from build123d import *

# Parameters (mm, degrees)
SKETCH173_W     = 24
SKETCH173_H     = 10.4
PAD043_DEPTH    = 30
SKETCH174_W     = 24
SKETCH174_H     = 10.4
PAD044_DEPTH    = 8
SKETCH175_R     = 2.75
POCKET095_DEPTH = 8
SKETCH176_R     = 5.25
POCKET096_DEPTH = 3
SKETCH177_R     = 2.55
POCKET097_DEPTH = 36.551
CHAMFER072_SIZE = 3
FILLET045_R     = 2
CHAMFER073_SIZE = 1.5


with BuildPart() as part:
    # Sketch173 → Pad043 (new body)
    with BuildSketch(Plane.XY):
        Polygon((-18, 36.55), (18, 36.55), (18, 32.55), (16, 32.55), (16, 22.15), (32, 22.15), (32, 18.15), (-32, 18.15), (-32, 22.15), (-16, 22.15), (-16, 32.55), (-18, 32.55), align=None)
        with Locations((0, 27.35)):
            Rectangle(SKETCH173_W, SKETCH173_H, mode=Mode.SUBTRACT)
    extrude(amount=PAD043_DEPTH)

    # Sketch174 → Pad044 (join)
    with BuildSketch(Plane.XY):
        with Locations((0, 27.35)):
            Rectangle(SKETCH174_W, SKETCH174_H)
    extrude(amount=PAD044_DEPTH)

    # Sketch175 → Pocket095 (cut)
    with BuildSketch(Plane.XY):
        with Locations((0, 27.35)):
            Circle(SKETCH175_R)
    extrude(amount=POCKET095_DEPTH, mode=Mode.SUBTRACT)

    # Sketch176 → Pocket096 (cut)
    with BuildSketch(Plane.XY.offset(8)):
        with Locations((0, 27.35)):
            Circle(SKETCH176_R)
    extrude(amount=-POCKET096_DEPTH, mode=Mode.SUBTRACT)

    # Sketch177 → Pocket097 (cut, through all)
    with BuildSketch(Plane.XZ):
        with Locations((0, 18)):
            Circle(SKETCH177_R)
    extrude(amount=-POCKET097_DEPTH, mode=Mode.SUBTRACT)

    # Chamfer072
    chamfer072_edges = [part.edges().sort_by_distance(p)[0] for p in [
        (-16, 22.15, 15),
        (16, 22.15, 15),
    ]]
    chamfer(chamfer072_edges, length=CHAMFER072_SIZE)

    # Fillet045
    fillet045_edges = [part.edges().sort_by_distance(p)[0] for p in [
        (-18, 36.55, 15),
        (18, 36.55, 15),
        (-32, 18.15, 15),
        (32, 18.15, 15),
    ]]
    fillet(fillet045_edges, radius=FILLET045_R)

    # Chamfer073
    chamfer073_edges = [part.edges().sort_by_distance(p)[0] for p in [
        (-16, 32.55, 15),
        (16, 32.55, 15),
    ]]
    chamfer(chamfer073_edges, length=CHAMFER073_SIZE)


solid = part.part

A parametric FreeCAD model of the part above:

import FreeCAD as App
import Part
import Sketcher

V = App.Vector


def edges_at(feature, points):
    """Names of the edges that pass closest to the given points."""
    edges = feature.Shape.Edges
    near = lambda p: min(range(len(edges)), key=lambda i: edges[i].distToShape(Part.Vertex(*p))[0])
    return sorted({f"Edge{near(p) + 1}" for p in points})

doc = App.newDocument("Part")
body = doc.addObject("PartDesign::Body", "Body")

sketch1 = doc.addObject("Sketcher::SketchObject", "Sketch")
body.addObject(sketch1)
sketch1.AttachmentSupport = (doc.XY_Plane, [""])
sketch1.MapMode = "FlatFace"
sketch1.addGeometry([
    Part.LineSegment(V(18, 36.5, 0), V(-18, 36.5, 0)),
    Part.LineSegment(V(-18, 36.5, 0), V(-18, 32.5, 0)),
    Part.LineSegment(V(-18, 32.5, 0), V(-16, 32.5, 0)),
    Part.LineSegment(V(-16, 32.5, 0), V(-16, 22.1, 0)),
    Part.LineSegment(V(-16, 22.1, 0), V(-32, 22.1, 0)),
    Part.LineSegment(V(-32, 22.1, 0), V(-32, 18.1, 0)),
    Part.LineSegment(V(-32, 18.1, 0), V(32, 18.1, 0)),
    Part.LineSegment(V(32, 18.1, 0), V(32, 22.1, 0)),
    Part.LineSegment(V(32, 22.1, 0), V(16, 22.1, 0)),
    Part.LineSegment(V(16, 22.1, 0), V(16, 32.5, 0)),
    Part.LineSegment(V(16, 32.5, 0), V(18, 32.5, 0)),
    Part.LineSegment(V(18, 32.5, 0), V(18, 36.5, 0)),
    Part.LineSegment(V(-12, 22.1, 0), V(-12, 32.5, 0)),
    Part.LineSegment(V(-12, 32.5, 0), V(12, 32.5, 0)),
    Part.LineSegment(V(12, 32.5, 0), V(12, 22.1, 0)),
    Part.LineSegment(V(12, 22.1, 0), V(-12, 22.1, 0)),
], False)
sketch1.addConstraint([
    Sketcher.Constraint("Coincident", 0, 2, 1, 1),
    Sketcher.Constraint("Coincident", 1, 2, 2, 1),
    Sketcher.Constraint("Coincident", 2, 2, 3, 1),
    Sketcher.Constraint("Coincident", 3, 2, 4, 1),
    Sketcher.Constraint("Coincident", 4, 2, 5, 1),
    Sketcher.Constraint("Coincident", 5, 2, 6, 1),
    Sketcher.Constraint("Coincident", 6, 2, 7, 1),
    Sketcher.Constraint("Coincident", 7, 2, 8, 1),
    Sketcher.Constraint("Coincident", 8, 2, 9, 1),
    Sketcher.Constraint("Coincident", 9, 2, 10, 1),
    Sketcher.Constraint("Coincident", 10, 2, 11, 1),
    Sketcher.Constraint("Coincident", 11, 2, 0, 1),
    Sketcher.Constraint("Coincident", 12, 2, 13, 1),
    Sketcher.Constraint("Coincident", 13, 2, 14, 1),
    Sketcher.Constraint("Coincident", 14, 2, 15, 1),
    Sketcher.Constraint("Coincident", 15, 2, 12, 1),
    Sketcher.Constraint("Horizontal", 0),
    Sketcher.Constraint("Vertical", 1),
    Sketcher.Constraint("Horizontal", 2),
    Sketcher.Constraint("Vertical", 3),
    Sketcher.Constraint("Horizontal", 4),
    Sketcher.Constraint("Vertical", 5),
    Sketcher.Constraint("Horizontal", 6),
    Sketcher.Constraint("Vertical", 7),
    Sketcher.Constraint("Horizontal", 8),
    Sketcher.Constraint("Vertical", 9),
    Sketcher.Constraint("Horizontal", 10),
    Sketcher.Constraint("Vertical", 11),
    Sketcher.Constraint("Vertical", 12),
    Sketcher.Constraint("Horizontal", 13),
    Sketcher.Constraint("Vertical", 14),
    Sketcher.Constraint("Horizontal", 15),
    Sketcher.Constraint("Symmetric", 4, 2, 7, 2, -2),
    Sketcher.Constraint("Symmetric", 2, 2, 9, 2, -2),
    Sketcher.Constraint("Horizontal", 10, 2, 12, 2),
    Sketcher.Constraint("Horizontal", 8, 2, 14, 2),
    Sketcher.Constraint("Equal", 2, 10),
    Sketcher.Constraint("Equal", 1, 5),
    Sketcher.Constraint("DistanceX", 0, 2, 0, 1, 36.0),
    Sketcher.Constraint("DistanceX", 2, 1, 2, 2, 2.0),
    Sketcher.Constraint("DistanceX", 4, 2, 4, 1, 16.0),
    Sketcher.Constraint("DistanceX", 13, 1, 13, 2, 24.0),
    Sketcher.Constraint("DistanceY", 1, 2, 1, 1, 4.0),
    Sketcher.Constraint("DistanceY", 3, 2, 3, 1, 10.4),
    Sketcher.Constraint("DistanceX", 12, 2, -1, 1, 12.0),
    Sketcher.Constraint("DistanceY", -1, 1, 0, 2, 36.55),
])
pad1 = doc.addObject("PartDesign::Pad", "Pad")
body.addObject(pad1)
pad1.Profile = sketch1
pad1.Length = 30

sketch2 = doc.addObject("Sketcher::SketchObject", "Sketch001")
body.addObject(sketch2)
sketch2.AttachmentSupport = (doc.XY_Plane, [""])
sketch2.MapMode = "FlatFace"
sketch2.addGeometry([
    Part.LineSegment(V(-12, 33, 0), V(-12, 22, 0)),
    Part.LineSegment(V(-12, 22, 0), V(12, 22, 0)),
    Part.LineSegment(V(12, 22, 0), V(12, 33, 0)),
    Part.LineSegment(V(12, 33, 0), V(-12, 33, 0)),
], False)
sketch2.addConstraint([
    Sketcher.Constraint("Coincident", 0, 2, 1, 1),
    Sketcher.Constraint("Coincident", 1, 2, 2, 1),
    Sketcher.Constraint("Coincident", 2, 2, 3, 1),
    Sketcher.Constraint("Coincident", 3, 2, 0, 1),
    Sketcher.Constraint("Vertical", 0),
    Sketcher.Constraint("Horizontal", 1),
    Sketcher.Constraint("Vertical", 2),
    Sketcher.Constraint("Horizontal", 3),
    Sketcher.Constraint("DistanceX", 1, 1, 1, 2, 24.0),
    Sketcher.Constraint("DistanceY", 0, 2, 0, 1, 10.4),
    Sketcher.Constraint("DistanceX", 0, 2, -1, 1, 12.0),
    Sketcher.Constraint("DistanceY", -1, 1, 0, 2, 22.15),
])
pad2 = doc.addObject("PartDesign::Pad", "Pad001")
body.addObject(pad2)
pad2.Profile = sketch2
pad2.Length = 8

sketch3 = doc.addObject("Sketcher::SketchObject", "Sketch002")
body.addObject(sketch3)
sketch3.AttachmentSupport = (doc.XY_Plane, [""])
sketch3.MapMode = "FlatFace"
sketch3.addGeometry(Part.Circle(V(0, 27.4, 0), V(0, 0, 1), 2.8), False)
sketch3.addConstraint([
    Sketcher.Constraint("PointOnObject", 0, 3, -2),
    Sketcher.Constraint("Diameter", 0, 5.5),
    Sketcher.Constraint("DistanceY", -1, 1, 0, 3, 27.35),
])
pocket1 = doc.addObject("PartDesign::Pocket", "Pocket")
body.addObject(pocket1)
pocket1.Profile = sketch3
pocket1.Length = 8
pocket1.Reversed = True

sketch4 = doc.addObject("Sketcher::SketchObject", "Sketch003")
body.addObject(sketch4)
sketch4.AttachmentSupport = (doc.XY_Plane, [""])
sketch4.MapMode = "FlatFace"
sketch4.AttachmentOffset = App.Placement(V(0, 0, 8), App.Rotation())
sketch4.addGeometry(Part.Circle(V(0, 27, 0), V(0, 0, 1), 5), False)
sketch4.addConstraint([
    Sketcher.Constraint("PointOnObject", 0, 3, -2),
    Sketcher.Constraint("Diameter", 0, 10.5),
    Sketcher.Constraint("DistanceY", -1, 1, 0, 3, 27.35),
])
pocket2 = doc.addObject("PartDesign::Pocket", "Pocket001")
body.addObject(pocket2)
pocket2.Profile = sketch4
pocket2.Length = 3

sketch5 = doc.addObject("Sketcher::SketchObject", "Sketch004")
body.addObject(sketch5)
sketch5.AttachmentSupport = (doc.XZ_Plane, [""])
sketch5.MapMode = "FlatFace"
sketch5.addGeometry(Part.Circle(V(0, 18, 0), V(0, 0, 1), 2.5), False)
sketch5.addConstraint([
    Sketcher.Constraint("PointOnObject", 0, 3, -2),
    Sketcher.Constraint("Diameter", 0, 5.1),
    Sketcher.Constraint("DistanceY", -1, 1, 0, 3, 18.0),
])
pocket3 = doc.addObject("PartDesign::Pocket", "Pocket002")
body.addObject(pocket3)
pocket3.Profile = sketch5
pocket3.Type = "ThroughAll"
doc.recompute()

chamfer = doc.addObject("PartDesign::Chamfer", "Chamfer")
body.addObject(chamfer)
chamfer.Base = (pocket3, edges_at(pocket3, [(-16, 22.15, 15), (16, 22.15, 15)]))
chamfer.Size = 3
doc.recompute()

fillet = doc.addObject("PartDesign::Fillet", "Fillet")
body.addObject(fillet)
fillet.Base = (chamfer, edges_at(chamfer, [
    (-18, 36.55, 15),
    (18, 36.55, 15),
    (-32, 18.15, 15),
    (32, 18.15, 15),
]))
fillet.Radius = 2
doc.recompute()

chamfer2 = doc.addObject("PartDesign::Chamfer", "Chamfer001")
body.addObject(chamfer2)
chamfer2.Base = (fillet, edges_at(fillet, [(-16, 32.55, 15), (16, 32.55, 15)]))
chamfer2.Size = 1.5

doc.recompute()
